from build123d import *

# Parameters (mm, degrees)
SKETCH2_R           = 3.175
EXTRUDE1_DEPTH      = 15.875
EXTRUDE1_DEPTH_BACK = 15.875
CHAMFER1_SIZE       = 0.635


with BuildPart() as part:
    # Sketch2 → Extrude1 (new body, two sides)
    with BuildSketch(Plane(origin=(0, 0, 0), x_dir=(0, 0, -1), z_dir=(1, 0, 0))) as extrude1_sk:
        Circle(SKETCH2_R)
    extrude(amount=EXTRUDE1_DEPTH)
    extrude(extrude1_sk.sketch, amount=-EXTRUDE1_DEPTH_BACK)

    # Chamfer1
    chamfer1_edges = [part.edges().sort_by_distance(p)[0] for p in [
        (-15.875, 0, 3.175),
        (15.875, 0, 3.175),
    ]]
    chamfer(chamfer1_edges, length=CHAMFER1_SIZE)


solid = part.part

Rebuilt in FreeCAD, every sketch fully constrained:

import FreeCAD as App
import Part
import Sketcher
Q = App.Units.Quantity


def edges_at(feature, points):
    """Names of the edges that pass closest to the given points."""
    edges = feature.Shape.Edges
    near = lambda p: min(range(len(edges)), key=lambda i: edges[i].distToShape(Part.Vertex(*p))[0])
    return sorted({f"Edge{near(p) + 1}" for p in points})

doc = App.newDocument("Part")
body = doc.addObject("PartDesign::Body", "Body")

sketch1 = body.newObject("Sketcher::SketchObject", "Sketch")
sketch1.AttachmentSupport = (doc.getObject("YZ_Plane"), [""])
sketch1.MapMode = "FlatFace"
sketch1.addGeometry(Part.Circle(App.Vector(0, 0, 0), App.Vector(0, 0, 1), 3.175), False)
sketch1.addConstraint([
    Sketcher.Constraint("Coincident", 0, 3, -1, 1),
    Sketcher.Constraint("Diameter", 0, Q("0.25 in")),
])
pad1 = body.newObject("PartDesign::Pad", "Pad")
pad1.Profile = sketch1
pad1.Type = "TwoLengths"
pad1.Length = Q("0.625 in")
pad1.Length2 = Q("0.625 in")
doc.recompute()

chamfer = body.newObject("PartDesign::Chamfer", "Chamfer")
chamfer.Base = (pad1, edges_at(pad1, [(-15.875, 0, 3.175), (15.875, 0, 3.175)]))
chamfer.Size = Q("0.025 in")

doc.recompute()
